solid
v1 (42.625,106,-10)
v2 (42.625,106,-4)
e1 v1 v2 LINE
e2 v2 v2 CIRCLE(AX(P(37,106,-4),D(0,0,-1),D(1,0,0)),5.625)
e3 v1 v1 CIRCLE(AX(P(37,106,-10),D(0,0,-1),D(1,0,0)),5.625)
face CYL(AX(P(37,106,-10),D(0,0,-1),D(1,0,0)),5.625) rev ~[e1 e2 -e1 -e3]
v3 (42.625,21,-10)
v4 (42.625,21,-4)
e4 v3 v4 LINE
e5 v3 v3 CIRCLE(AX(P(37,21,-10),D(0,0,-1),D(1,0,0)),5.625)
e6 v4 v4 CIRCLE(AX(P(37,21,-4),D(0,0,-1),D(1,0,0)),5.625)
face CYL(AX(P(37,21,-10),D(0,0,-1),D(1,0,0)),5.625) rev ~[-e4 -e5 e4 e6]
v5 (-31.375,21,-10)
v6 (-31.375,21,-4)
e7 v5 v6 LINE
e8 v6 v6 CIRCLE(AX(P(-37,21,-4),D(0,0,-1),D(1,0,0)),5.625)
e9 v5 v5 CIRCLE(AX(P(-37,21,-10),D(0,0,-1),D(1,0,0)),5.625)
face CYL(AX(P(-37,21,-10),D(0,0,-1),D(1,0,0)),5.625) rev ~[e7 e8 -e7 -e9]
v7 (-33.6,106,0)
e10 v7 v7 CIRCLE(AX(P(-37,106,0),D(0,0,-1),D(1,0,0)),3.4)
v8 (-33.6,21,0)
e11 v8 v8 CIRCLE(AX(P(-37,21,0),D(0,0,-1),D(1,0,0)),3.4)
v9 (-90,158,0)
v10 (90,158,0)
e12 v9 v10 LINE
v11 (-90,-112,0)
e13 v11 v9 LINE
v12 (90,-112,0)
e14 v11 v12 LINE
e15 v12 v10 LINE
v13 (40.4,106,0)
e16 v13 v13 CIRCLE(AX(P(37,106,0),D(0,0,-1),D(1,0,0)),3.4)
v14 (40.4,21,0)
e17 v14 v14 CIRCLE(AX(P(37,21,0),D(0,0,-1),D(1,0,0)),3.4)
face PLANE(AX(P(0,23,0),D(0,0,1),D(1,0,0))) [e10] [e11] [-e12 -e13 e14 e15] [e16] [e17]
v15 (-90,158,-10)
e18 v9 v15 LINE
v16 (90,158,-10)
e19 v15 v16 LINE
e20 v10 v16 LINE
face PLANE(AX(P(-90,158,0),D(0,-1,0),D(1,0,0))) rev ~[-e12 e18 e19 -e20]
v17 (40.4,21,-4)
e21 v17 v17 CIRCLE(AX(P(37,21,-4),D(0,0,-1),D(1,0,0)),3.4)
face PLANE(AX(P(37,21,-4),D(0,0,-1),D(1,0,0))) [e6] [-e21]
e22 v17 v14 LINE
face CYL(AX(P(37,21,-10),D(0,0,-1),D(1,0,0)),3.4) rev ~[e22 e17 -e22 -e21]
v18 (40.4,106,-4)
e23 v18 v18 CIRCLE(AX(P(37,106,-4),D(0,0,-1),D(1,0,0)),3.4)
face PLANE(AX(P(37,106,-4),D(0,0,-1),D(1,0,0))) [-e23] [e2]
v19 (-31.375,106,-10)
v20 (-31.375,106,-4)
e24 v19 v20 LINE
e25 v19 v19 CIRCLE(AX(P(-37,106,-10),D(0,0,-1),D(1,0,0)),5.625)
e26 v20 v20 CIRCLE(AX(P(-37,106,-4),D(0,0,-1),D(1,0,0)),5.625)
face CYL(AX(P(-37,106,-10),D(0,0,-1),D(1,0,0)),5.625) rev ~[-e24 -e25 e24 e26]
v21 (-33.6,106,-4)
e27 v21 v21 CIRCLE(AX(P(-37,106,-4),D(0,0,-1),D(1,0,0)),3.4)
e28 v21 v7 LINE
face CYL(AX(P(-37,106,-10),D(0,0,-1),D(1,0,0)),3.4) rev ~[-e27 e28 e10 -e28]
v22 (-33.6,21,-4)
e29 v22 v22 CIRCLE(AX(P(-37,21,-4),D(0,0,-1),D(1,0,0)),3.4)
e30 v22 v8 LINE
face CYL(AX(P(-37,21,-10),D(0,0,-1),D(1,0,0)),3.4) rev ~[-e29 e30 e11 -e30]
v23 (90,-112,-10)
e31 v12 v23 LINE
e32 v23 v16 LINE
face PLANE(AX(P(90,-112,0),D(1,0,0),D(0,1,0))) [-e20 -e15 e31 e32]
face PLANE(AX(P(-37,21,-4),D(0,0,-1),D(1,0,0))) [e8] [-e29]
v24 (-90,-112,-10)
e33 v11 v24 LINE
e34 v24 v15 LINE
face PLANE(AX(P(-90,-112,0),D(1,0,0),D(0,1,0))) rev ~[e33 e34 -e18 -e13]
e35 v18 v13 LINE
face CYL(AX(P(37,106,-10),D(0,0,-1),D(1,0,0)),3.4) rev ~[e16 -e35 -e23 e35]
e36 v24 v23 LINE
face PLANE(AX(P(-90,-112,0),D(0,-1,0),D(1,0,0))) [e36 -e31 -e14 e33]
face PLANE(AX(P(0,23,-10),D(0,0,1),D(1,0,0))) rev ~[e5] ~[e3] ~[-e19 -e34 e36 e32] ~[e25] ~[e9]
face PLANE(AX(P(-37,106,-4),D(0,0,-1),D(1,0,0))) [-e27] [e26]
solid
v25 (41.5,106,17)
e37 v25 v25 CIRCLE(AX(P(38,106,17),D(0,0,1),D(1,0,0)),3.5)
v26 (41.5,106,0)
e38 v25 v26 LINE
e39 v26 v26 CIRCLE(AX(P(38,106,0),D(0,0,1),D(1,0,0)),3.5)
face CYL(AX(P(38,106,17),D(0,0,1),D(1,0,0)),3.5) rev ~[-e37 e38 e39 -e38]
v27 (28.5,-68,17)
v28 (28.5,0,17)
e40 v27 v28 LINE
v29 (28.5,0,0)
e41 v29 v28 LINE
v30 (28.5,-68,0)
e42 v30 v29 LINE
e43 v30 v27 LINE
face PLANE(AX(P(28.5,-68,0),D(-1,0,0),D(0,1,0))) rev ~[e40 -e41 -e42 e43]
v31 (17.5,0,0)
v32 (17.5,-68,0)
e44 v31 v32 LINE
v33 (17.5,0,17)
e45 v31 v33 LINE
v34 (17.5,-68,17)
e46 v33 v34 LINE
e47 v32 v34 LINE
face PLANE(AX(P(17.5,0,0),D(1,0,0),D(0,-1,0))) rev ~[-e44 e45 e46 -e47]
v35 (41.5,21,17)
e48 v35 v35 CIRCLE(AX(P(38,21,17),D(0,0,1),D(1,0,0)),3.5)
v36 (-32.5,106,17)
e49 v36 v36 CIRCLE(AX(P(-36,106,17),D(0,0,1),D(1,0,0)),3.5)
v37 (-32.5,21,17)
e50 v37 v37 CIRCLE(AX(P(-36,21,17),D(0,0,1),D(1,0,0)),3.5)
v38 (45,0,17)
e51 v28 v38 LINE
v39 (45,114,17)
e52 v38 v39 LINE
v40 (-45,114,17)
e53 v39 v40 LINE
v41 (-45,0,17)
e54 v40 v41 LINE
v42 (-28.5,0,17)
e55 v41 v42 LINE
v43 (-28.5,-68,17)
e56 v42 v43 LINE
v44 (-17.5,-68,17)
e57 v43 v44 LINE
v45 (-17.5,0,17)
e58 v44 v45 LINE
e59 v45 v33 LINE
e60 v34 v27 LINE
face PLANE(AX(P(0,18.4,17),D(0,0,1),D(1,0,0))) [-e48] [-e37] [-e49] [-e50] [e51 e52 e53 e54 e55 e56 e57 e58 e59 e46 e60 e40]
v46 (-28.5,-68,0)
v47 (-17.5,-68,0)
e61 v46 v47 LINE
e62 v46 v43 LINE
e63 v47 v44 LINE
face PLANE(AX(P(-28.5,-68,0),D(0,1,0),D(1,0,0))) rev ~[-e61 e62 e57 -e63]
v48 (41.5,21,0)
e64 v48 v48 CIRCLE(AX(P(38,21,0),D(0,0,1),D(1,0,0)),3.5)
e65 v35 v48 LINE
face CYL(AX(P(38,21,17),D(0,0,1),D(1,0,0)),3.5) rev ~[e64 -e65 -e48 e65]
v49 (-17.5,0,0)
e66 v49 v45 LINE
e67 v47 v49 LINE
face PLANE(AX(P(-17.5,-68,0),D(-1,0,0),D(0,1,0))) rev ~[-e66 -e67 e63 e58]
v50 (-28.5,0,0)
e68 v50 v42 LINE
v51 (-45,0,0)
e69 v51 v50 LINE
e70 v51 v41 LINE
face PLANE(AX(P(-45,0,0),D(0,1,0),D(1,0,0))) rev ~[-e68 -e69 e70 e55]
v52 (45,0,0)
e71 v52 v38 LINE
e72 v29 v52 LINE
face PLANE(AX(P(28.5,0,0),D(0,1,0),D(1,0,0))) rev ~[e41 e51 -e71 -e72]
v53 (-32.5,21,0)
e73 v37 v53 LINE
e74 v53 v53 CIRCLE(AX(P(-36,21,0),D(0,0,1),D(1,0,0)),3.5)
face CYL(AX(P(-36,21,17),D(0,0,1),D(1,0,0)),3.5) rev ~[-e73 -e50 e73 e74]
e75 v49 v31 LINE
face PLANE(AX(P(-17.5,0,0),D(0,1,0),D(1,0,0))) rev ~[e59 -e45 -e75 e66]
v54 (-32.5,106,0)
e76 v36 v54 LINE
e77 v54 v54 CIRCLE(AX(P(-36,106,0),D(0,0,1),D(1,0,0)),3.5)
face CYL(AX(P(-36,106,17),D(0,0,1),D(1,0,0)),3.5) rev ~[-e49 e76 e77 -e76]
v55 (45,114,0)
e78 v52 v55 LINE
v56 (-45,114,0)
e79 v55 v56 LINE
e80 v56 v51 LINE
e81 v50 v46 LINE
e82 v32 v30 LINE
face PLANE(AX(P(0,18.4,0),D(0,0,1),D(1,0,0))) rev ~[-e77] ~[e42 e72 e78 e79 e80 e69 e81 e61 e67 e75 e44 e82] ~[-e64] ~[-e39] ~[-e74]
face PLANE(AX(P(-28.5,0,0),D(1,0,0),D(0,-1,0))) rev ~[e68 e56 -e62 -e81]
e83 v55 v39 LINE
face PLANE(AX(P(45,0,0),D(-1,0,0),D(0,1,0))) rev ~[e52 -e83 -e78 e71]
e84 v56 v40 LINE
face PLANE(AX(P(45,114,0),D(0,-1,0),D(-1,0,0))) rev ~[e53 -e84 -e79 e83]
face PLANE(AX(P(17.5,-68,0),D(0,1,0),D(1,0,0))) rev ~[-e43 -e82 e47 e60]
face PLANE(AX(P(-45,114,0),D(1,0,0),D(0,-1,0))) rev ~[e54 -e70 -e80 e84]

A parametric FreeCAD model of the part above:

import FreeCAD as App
import Part
import Sketcher

doc = App.newDocument("Part")
body = doc.addObject("PartDesign::Body", "Body")

# Sketch on XY plane
sketch1 = body.newObject("Sketcher::SketchObject", "Sketch")
sketch1.AttachmentSupport = (doc.getObject("XY_Plane"), [""])
sketch1.MapMode = "FlatFace"
sketch1.addGeometry([
    Part.LineSegment(App.Vector(-45, 114, 0), App.Vector(-45, 0, 0)),  # 0
    Part.LineSegment(App.Vector(-45, 0, 0), App.Vector(-28, 0, 0)),  # 1
    Part.LineSegment(App.Vector(-28, 0, 0), App.Vector(-28, -68, 0)),  # 2
    Part.LineSegment(App.Vector(-28, -68, 0), App.Vector(-18, -68, 0)),  # 3
    Part.LineSegment(App.Vector(-18, -68, 0), App.Vector(-18, 0, 0)),  # 4
    Part.LineSegment(App.Vector(-18, 0, 0), App.Vector(18, 0, 0)),  # 5
    Part.LineSegment(App.Vector(18, 0, 0), App.Vector(18, -68, 0)),  # 6
    Part.LineSegment(App.Vector(18, -68, 0), App.Vector(28, -68, 0)),  # 7
    Part.LineSegment(App.Vector(28, -68, 0), App.Vector(28, 0, 0)),  # 8
    Part.LineSegment(App.Vector(28, 0, 0), App.Vector(45, 0, 0)),  # 9
    Part.LineSegment(App.Vector(45, 0, 0), App.Vector(45, 114, 0)),  # 10
    Part.LineSegment(App.Vector(45, 114, 0), App.Vector(-45, 114, 0)),  # 11
], False)
sketch1.addConstraint([
    Sketcher.Constraint("Coincident", 0, 2, 1, 1),
    Sketcher.Constraint("Coincident", 1, 2, 2, 1),
    Sketcher.Constraint("Coincident", 2, 2, 3, 1),
    Sketcher.Constraint("Coincident", 3, 2, 4, 1),
    Sketcher.Constraint("Coincident", 4, 2, 5, 1),
    Sketcher.Constraint("Coincident", 5, 2, 6, 1),
    Sketcher.Constraint("Coincident", 6, 2, 7, 1),
    Sketcher.Constraint("Coincident", 7, 2, 8, 1),
    Sketcher.Constraint("Coincident", 8, 2, 9, 1),
    Sketcher.Constraint("Coincident", 9, 2, 10, 1),
    Sketcher.Constraint("Coincident", 10, 2, 11, 1),
    Sketcher.Constraint("Coincident", 11, 2, 0, 1),
    Sketcher.Constraint("Vertical", 0),
    Sketcher.Constraint("Horizontal", 1),
    Sketcher.Constraint("Vertical", 2),
    Sketcher.Constraint("Horizontal", 3),
    Sketcher.Constraint("Vertical", 4),
    Sketcher.Constraint("Horizontal", 5),
    Sketcher.Constraint("Vertical", 6),
    Sketcher.Constraint("Horizontal", 7),
    Sketcher.Constraint("Vertical", 8),
    Sketcher.Constraint("Horizontal", 9),
    Sketcher.Constraint("Vertical", 10),
    Sketcher.Constraint("Horizontal", 11),
    Sketcher.Constraint("Symmetric", 4, 2, 5, 2, -1, 1),
    Sketcher.Constraint("Symmetric", 1, 2, 8, 2, -1, 1),
    Sketcher.Constraint("Symmetric", 0, 2, 9, 2, -2),
    Sketcher.Constraint("Horizontal", 3, 2, 6, 2),
    Sketcher.Constraint("DistanceX", 3, 1, 3, 2, 11.0),
    Sketcher.Constraint("DistanceX", 5, 1, 5, 2, 35.0),
    Sketcher.Constraint("DistanceX", 11, 2, 11, 1, 90.0),
    Sketcher.Constraint("DistanceY", 0, 2, 0, 1, 114.0),
    Sketcher.Constraint("DistanceY", 2, 2, 2, 1, 68.0),
])
pad1 = body.newObject("PartDesign::Pad", "Pad")
pad1.Profile = sketch1
pad1.Length = 17

# Sketch on XY plane
sketch2 = body.newObject("Sketcher::SketchObject", "Sketch001")
sketch2.AttachmentSupport = (doc.getObject("XY_Plane"), [""])
sketch2.MapMode = "FlatFace"
sketch2.AttachmentOffset = App.Placement(App.Vector(0, 0, 17), App.Rotation())
sketch2.addGeometry([
    Part.Circle(App.Vector(-36, 106, 0), App.Vector(0, 0, 1), 3.5),
    Part.Circle(App.Vector(-36, 21, 0), App.Vector(0, 0, 1), 3.5),
    Part.Circle(App.Vector(38, 106, 0), App.Vector(0, 0, 1), 3.5),
    Part.Circle(App.Vector(38, 21, 0), App.Vector(0, 0, 1), 3.5),
], False)
sketch2.addConstraint([
    Sketcher.Constraint("Equal", 0, 1),
    Sketcher.Constraint("Equal", 1, 2),
    Sketcher.Constraint("Equal", 2, 3),
    Sketcher.Constraint("Horizontal", 0, 3, 2, 3),
    Sketcher.Constraint("Horizontal", 1, 3, 3, 3),
    Sketcher.Constraint("Vertical", 0, 3, 1, 3),
    Sketcher.Constraint("Vertical", 2, 3, 3, 3),
    Sketcher.Constraint("Diameter", 0, 7.0),
    Sketcher.Constraint("DistanceX", 0, 3, -1, 1, 36.0),
    Sketcher.Constraint("DistanceY", -1, 1, 0, 3, 106.0),
    Sketcher.Constraint("DistanceY", -1, 1, 1, 3, 21.0),
    Sketcher.Constraint("DistanceX", -1, 1, 2, 3, 38.0),
])
pocket1 = body.newObject("PartDesign::Pocket", "Pocket")
pocket1.Profile = sketch2
pocket1.Type = "ThroughAll"
body2 = doc.addObject("PartDesign::Body", "Body001")

# Sketch on XY plane
sketch3 = body2.newObject("Sketcher::SketchObject", "Sketch002")
sketch3.AttachmentSupport = (doc.getObject("XY_Plane001"), [""])
sketch3.MapMode = "FlatFace"
sketch3.addGeometry([
    Part.LineSegment(App.Vector(-90, 158, 0), App.Vector(-90, -112, 0)),
    Part.LineSegment(App.Vector(-90, -112, 0), App.Vector(90, -112, 0)),
    Part.LineSegment(App.Vector(90, -112, 0), App.Vector(90, 158, 0)),
    Part.LineSegment(App.Vector(90, 158, 0), App.Vector(-90, 158, 0)),
], False)
sketch3.addConstraint([
    Sketcher.Constraint("Coincident", 0, 2, 1, 1),
    Sketcher.Constraint("Coincident", 1, 2, 2, 1),
    Sketcher.Constraint("Coincident", 2, 2, 3, 1),
    Sketcher.Constraint("Coincident", 3, 2, 0, 1),
    Sketcher.Constraint("Vertical", 0),
    Sketcher.Constraint("Horizontal", 1),
    Sketcher.Constraint("Vertical", 2),
    Sketcher.Constraint("Horizontal", 3),
    Sketcher.Constraint("DistanceX", 1, 1, 1, 2, 180.0),
    Sketcher.Constraint("DistanceY", 0, 2, 0, 1, 270.0),
    Sketcher.Constraint("DistanceX", 0, 2, -1, 1, 90.0),
    Sketcher.Constraint("DistanceY", 0, 2, -1, 1, 112.0),
])
pad2 = body2.newObject("PartDesign::Pad", "Pad001")
pad2.Profile = sketch3
pad2.Length = 10
pad2.Reversed = True

# Sketch on XY plane
sketch4 = body2.newObject("Sketcher::SketchObject", "Sketch003")
sketch4.AttachmentSupport = (doc.getObject("XY_Plane001"), [""])
sketch4.MapMode = "FlatFace"
sketch4.AttachmentOffset = App.Placement(App.Vector(0, 0, -10), App.Rotation())
sketch4.addGeometry([
    Part.Circle(App.Vector(37, 106, 0), App.Vector(0, 0, 1), 3.4),
    Part.Circle(App.Vector(-37, 106, 0), App.Vector(0, 0, 1), 3.4),
    Part.Circle(App.Vector(37, 21, 0), App.Vector(0, 0, 1), 3.4),
    Part.Circle(App.Vector(-37, 21, 0), App.Vector(0, 0, 1), 3.4),
], False)
sketch4.addConstraint([
    Sketcher.Constraint("Equal", 0, 1),
    Sketcher.Constraint("Equal", 1, 2),
    Sketcher.Constraint("Equal", 2, 3),
    Sketcher.Constraint("Symmetric", 0, 3, 1, 3, -2),
    Sketcher.Constraint("Symmetric", 2, 3, 3, 3, -2),
    Sketcher.Constraint("Vertical", 0, 3, 2, 3),
    Sketcher.Constraint("Diameter", 0, 6.8),
    Sketcher.Constraint("DistanceX", -1, 1, 0, 3, 37.0),
    Sketcher.Constraint("DistanceY", -1, 1, 0, 3, 106.0),
    Sketcher.Constraint("DistanceY", -1, 1, 2, 3, 21.0),
])
pocket2 = body2.newObject("PartDesign::Pocket", "Pocket001")
pocket2.Profile = sketch4
pocket2.Length = 10
pocket2.Reversed = True

# Sketch on XY plane
sketch5 = body2.newObject("Sketcher::SketchObject", "Sketch004")
sketch5.AttachmentSupport = (doc.getObject("XY_Plane001"), [""])
sketch5.MapMode = "FlatFace"
sketch5.AttachmentOffset = App.Placement(App.Vector(0, 0, -10), App.Rotation())
sketch5.addGeometry([
    Part.Circle(App.Vector(37, 21, 0), App.Vector(0, 0, 1), 6),
    Part.Circle(App.Vector(37, 106, 0), App.Vector(0, 0, 1), 6),
    Part.Circle(App.Vector(-37, 106, 0), App.Vector(0, 0, 1), 6),
    Part.Circle(App.Vector(-37, 21, 0), App.Vector(0, 0, 1), 6),
], False)
sketch5.addConstraint([
    Sketcher.Constraint("Equal", 0, 1),
    Sketcher.Constraint("Equal", 1, 2),
    Sketcher.Constraint("Equal", 2, 3),
    Sketcher.Constraint("Symmetric", 1, 3, 2, 3, -2),
    Sketcher.Constraint("Symmetric", 0, 3, 3, 3, -2),
    Sketcher.Constraint("Vertical", 0, 3, 1, 3),
    Sketcher.Constraint("Diameter", 0, 11.25),
    Sketcher.Constraint("DistanceX", -1, 1, 0, 3, 37.0),
    Sketcher.Constraint("DistanceY", -1, 1, 0, 3, 21.0),
    Sketcher.Constraint("DistanceY", -1, 1, 1, 3, 106.0),
])
pocket3 = body2.newObject("PartDesign::Pocket", "Pocket002")
pocket3.Profile = sketch5
pocket3.Length = 6
pocket3.Reversed = True

doc.recompute()
